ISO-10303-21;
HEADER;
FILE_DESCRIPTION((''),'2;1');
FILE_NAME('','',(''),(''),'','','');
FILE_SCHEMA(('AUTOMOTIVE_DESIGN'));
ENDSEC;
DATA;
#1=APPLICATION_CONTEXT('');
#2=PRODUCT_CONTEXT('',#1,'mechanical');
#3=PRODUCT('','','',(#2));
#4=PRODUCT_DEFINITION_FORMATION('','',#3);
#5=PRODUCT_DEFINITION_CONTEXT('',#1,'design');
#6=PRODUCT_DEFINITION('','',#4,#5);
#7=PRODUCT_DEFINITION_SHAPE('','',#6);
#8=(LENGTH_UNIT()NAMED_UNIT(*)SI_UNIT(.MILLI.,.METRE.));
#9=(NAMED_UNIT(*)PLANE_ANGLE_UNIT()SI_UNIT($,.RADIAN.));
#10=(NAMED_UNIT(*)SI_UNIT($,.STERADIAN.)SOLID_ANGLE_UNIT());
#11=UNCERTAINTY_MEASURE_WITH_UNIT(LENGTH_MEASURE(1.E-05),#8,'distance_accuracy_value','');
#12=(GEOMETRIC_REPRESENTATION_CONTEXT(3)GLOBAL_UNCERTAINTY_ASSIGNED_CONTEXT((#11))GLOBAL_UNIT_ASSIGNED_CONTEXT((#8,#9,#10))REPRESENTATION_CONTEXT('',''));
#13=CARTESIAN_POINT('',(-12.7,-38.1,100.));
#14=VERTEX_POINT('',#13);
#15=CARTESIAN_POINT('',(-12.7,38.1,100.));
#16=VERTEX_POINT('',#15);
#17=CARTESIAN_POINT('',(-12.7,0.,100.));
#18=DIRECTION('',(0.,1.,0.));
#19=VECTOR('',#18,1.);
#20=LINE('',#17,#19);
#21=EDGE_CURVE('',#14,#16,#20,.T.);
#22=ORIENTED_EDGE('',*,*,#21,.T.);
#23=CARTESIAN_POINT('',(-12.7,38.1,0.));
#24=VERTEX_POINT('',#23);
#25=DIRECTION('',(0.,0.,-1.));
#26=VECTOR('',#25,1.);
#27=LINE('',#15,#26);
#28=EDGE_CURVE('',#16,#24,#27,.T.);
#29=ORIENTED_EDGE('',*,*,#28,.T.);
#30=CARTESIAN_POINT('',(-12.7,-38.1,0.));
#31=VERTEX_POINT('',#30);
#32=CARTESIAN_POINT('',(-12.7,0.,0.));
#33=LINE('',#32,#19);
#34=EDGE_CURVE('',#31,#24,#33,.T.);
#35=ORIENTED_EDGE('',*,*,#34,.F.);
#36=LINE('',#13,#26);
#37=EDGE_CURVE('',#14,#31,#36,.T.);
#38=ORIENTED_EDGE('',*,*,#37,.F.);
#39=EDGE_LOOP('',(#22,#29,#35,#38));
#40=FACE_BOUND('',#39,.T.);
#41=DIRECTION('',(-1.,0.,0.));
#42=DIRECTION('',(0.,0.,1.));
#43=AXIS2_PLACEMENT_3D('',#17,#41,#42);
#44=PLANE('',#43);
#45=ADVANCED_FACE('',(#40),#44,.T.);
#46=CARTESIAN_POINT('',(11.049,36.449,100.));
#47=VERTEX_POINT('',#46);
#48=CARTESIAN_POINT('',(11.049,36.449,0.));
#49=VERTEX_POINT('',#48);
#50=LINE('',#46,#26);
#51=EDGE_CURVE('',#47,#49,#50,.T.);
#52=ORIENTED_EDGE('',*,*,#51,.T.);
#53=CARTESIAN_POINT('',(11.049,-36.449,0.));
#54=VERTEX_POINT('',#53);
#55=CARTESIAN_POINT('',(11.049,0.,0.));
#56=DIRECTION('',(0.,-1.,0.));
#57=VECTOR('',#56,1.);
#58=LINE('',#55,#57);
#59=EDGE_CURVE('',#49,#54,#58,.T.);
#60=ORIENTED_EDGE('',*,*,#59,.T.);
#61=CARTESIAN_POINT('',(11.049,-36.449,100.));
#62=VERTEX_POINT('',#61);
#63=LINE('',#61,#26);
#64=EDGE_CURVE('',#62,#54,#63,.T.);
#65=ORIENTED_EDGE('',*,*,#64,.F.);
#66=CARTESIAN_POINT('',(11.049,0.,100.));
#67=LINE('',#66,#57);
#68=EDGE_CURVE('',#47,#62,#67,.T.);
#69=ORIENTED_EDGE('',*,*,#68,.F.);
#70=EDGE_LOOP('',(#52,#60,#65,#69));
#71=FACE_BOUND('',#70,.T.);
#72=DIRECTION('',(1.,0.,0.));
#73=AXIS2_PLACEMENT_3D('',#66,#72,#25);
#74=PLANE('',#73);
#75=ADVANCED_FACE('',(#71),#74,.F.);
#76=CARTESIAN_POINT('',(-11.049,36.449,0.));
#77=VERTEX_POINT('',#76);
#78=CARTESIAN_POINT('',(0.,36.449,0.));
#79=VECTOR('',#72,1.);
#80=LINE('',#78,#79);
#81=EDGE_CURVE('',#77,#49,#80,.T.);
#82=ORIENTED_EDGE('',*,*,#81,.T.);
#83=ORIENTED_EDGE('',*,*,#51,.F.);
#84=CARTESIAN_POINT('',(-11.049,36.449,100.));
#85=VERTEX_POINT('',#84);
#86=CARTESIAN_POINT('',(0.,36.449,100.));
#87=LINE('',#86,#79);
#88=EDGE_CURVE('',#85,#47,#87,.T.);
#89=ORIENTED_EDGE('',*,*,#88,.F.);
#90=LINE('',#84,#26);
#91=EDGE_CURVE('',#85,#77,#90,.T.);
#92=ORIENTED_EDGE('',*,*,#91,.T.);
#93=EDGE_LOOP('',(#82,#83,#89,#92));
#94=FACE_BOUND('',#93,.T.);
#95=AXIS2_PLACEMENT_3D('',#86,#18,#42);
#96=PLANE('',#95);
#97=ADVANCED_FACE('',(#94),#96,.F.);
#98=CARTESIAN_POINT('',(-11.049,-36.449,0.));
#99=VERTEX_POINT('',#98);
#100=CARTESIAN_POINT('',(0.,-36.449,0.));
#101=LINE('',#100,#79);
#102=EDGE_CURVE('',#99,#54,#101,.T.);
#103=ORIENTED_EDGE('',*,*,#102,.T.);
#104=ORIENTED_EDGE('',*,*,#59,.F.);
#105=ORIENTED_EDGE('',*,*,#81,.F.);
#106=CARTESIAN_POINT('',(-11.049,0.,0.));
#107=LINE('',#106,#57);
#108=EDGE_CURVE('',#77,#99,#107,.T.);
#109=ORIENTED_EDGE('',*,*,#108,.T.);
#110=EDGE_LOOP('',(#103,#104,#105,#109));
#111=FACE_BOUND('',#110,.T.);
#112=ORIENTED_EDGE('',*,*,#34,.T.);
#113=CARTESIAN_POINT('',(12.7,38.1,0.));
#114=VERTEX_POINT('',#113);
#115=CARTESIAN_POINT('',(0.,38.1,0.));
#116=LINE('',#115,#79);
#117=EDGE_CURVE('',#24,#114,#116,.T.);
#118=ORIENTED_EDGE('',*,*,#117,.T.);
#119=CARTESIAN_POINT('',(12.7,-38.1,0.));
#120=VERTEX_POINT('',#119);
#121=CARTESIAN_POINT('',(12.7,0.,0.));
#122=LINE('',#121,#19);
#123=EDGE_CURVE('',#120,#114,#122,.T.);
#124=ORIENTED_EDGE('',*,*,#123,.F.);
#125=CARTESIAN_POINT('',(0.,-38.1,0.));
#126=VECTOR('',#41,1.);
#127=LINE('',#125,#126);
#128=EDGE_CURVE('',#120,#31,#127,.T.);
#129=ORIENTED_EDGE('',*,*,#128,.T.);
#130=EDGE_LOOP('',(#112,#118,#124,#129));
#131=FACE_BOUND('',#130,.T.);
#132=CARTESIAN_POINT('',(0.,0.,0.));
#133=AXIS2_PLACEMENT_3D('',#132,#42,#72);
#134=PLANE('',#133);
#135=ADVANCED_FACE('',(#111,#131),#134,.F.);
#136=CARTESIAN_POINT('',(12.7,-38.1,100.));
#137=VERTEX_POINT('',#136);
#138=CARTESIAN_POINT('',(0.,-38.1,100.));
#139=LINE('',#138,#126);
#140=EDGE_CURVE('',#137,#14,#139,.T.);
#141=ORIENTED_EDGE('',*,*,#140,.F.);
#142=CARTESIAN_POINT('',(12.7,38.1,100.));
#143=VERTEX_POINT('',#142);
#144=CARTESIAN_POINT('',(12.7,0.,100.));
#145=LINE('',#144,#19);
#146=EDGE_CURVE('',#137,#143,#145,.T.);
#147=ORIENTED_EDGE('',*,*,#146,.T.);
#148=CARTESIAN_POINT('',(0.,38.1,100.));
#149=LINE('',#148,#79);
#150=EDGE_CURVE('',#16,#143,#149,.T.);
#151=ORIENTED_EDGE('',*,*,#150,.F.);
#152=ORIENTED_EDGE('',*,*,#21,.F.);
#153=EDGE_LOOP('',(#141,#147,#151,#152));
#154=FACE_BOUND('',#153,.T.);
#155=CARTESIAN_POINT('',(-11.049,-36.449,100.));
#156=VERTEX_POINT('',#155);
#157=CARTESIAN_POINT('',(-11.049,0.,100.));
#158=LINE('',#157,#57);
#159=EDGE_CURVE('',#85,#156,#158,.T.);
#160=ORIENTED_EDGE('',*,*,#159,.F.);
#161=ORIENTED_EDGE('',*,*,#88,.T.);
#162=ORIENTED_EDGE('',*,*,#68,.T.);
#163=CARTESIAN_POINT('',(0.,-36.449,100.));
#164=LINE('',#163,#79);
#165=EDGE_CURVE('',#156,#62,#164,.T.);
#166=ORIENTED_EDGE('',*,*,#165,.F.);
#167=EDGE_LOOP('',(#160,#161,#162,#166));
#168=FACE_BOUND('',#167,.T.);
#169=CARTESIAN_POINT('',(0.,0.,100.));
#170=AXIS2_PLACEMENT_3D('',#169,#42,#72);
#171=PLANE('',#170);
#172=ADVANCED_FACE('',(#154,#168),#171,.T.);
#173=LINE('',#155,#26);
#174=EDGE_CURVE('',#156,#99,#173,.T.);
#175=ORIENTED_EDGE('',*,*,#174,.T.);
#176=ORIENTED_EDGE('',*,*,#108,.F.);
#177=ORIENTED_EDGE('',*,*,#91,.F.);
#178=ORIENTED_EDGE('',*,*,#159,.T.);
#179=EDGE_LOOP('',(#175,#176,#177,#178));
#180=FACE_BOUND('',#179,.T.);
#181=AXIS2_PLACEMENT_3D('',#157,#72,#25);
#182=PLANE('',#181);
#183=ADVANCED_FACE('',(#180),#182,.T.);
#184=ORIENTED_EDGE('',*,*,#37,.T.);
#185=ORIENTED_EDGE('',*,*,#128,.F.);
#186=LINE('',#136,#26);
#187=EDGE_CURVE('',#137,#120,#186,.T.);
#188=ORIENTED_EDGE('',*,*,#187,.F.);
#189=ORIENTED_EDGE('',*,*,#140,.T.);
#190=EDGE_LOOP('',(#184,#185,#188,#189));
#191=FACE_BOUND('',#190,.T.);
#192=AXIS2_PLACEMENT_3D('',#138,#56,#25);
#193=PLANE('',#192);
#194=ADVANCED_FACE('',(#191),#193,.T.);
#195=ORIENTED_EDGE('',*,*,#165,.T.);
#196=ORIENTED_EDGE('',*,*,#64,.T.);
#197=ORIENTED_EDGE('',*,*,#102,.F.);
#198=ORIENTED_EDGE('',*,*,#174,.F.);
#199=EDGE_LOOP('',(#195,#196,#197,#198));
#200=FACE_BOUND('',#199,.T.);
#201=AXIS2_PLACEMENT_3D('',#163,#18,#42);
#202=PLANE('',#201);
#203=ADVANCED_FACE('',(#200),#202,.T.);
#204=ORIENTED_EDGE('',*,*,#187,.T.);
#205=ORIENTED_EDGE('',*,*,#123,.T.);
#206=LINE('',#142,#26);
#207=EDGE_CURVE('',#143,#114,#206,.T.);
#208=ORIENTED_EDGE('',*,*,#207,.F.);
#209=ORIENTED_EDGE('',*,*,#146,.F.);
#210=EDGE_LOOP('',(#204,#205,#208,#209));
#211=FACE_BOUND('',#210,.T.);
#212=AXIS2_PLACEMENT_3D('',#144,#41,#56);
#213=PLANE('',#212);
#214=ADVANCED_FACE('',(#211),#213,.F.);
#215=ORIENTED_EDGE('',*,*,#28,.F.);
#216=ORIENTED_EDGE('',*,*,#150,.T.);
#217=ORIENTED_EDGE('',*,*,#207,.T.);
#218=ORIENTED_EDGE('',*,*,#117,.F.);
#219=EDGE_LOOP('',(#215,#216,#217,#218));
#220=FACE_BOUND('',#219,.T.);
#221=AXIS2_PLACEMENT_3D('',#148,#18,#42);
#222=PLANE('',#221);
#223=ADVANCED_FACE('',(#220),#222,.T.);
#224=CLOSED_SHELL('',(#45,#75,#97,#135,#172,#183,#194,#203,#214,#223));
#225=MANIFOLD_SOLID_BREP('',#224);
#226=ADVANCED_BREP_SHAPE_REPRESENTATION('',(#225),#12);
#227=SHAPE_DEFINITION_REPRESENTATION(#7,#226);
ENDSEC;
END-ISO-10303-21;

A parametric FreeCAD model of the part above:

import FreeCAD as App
import Part
import Sketcher
Q = App.Units.Quantity


def add_polygon(sketch, points):
    """Adds a closed chain of lines whose ends are joined by coincident constraints."""
    first, n = sketch.GeometryCount, len(points)
    for a, b in zip(points, points[1:] + points[:1]):
        sketch.addGeometry(Part.LineSegment(App.Vector(*a, 0), App.Vector(*b, 0)), False)
    for i in range(n):
        sketch.addConstraint(Sketcher.Constraint("Coincident", first + i, 2, first + (i + 1) % n, 1))

doc = App.newDocument("Part")
body = doc.addObject("PartDesign::Body", "Body")

sketch1 = body.newObject("Sketcher::SketchObject", "Sketch")
sketch1.AttachmentSupport = (doc.getObject("XY_Plane"), [""])
sketch1.MapMode = "FlatFace"
add_polygon(sketch1, [(13, 38), (-13, 38), (-13, -38), (13, -38)])
add_polygon(sketch1, [(-11, 36), (11, 36), (11, -36), (-11, -36)])
sketch1.addConstraint([
    Sketcher.Constraint("Horizontal", 0),
    Sketcher.Constraint("Vertical", 1),
    Sketcher.Constraint("Horizontal", 2),
    Sketcher.Constraint("Vertical", 3),
    Sketcher.Constraint("Horizontal", 4),
    Sketcher.Constraint("Vertical", 5),
    Sketcher.Constraint("Horizontal", 6),
    Sketcher.Constraint("Vertical", 7),
    Sketcher.Constraint("Symmetric", 0, 2, 2, 2, -1, 1),
    Sketcher.Constraint("Symmetric", 4, 2, 6, 2, -1, 1),
    Sketcher.Constraint("DistanceX", 0, 2, 0, 1, Q("1 in")),
    Sketcher.Constraint("DistanceY", 1, 2, 1, 1, Q("3 in")),
    Sketcher.Constraint("DistanceX", 4, 1, 4, 2, Q("0.87 in")),
    Sketcher.Constraint("DistanceY", 5, 2, 5, 1, Q("2.87 in")),
])
pad1 = body.newObject("PartDesign::Pad", "Pad")
pad1.Profile = sketch1
pad1.Length = 100

doc.recompute()
